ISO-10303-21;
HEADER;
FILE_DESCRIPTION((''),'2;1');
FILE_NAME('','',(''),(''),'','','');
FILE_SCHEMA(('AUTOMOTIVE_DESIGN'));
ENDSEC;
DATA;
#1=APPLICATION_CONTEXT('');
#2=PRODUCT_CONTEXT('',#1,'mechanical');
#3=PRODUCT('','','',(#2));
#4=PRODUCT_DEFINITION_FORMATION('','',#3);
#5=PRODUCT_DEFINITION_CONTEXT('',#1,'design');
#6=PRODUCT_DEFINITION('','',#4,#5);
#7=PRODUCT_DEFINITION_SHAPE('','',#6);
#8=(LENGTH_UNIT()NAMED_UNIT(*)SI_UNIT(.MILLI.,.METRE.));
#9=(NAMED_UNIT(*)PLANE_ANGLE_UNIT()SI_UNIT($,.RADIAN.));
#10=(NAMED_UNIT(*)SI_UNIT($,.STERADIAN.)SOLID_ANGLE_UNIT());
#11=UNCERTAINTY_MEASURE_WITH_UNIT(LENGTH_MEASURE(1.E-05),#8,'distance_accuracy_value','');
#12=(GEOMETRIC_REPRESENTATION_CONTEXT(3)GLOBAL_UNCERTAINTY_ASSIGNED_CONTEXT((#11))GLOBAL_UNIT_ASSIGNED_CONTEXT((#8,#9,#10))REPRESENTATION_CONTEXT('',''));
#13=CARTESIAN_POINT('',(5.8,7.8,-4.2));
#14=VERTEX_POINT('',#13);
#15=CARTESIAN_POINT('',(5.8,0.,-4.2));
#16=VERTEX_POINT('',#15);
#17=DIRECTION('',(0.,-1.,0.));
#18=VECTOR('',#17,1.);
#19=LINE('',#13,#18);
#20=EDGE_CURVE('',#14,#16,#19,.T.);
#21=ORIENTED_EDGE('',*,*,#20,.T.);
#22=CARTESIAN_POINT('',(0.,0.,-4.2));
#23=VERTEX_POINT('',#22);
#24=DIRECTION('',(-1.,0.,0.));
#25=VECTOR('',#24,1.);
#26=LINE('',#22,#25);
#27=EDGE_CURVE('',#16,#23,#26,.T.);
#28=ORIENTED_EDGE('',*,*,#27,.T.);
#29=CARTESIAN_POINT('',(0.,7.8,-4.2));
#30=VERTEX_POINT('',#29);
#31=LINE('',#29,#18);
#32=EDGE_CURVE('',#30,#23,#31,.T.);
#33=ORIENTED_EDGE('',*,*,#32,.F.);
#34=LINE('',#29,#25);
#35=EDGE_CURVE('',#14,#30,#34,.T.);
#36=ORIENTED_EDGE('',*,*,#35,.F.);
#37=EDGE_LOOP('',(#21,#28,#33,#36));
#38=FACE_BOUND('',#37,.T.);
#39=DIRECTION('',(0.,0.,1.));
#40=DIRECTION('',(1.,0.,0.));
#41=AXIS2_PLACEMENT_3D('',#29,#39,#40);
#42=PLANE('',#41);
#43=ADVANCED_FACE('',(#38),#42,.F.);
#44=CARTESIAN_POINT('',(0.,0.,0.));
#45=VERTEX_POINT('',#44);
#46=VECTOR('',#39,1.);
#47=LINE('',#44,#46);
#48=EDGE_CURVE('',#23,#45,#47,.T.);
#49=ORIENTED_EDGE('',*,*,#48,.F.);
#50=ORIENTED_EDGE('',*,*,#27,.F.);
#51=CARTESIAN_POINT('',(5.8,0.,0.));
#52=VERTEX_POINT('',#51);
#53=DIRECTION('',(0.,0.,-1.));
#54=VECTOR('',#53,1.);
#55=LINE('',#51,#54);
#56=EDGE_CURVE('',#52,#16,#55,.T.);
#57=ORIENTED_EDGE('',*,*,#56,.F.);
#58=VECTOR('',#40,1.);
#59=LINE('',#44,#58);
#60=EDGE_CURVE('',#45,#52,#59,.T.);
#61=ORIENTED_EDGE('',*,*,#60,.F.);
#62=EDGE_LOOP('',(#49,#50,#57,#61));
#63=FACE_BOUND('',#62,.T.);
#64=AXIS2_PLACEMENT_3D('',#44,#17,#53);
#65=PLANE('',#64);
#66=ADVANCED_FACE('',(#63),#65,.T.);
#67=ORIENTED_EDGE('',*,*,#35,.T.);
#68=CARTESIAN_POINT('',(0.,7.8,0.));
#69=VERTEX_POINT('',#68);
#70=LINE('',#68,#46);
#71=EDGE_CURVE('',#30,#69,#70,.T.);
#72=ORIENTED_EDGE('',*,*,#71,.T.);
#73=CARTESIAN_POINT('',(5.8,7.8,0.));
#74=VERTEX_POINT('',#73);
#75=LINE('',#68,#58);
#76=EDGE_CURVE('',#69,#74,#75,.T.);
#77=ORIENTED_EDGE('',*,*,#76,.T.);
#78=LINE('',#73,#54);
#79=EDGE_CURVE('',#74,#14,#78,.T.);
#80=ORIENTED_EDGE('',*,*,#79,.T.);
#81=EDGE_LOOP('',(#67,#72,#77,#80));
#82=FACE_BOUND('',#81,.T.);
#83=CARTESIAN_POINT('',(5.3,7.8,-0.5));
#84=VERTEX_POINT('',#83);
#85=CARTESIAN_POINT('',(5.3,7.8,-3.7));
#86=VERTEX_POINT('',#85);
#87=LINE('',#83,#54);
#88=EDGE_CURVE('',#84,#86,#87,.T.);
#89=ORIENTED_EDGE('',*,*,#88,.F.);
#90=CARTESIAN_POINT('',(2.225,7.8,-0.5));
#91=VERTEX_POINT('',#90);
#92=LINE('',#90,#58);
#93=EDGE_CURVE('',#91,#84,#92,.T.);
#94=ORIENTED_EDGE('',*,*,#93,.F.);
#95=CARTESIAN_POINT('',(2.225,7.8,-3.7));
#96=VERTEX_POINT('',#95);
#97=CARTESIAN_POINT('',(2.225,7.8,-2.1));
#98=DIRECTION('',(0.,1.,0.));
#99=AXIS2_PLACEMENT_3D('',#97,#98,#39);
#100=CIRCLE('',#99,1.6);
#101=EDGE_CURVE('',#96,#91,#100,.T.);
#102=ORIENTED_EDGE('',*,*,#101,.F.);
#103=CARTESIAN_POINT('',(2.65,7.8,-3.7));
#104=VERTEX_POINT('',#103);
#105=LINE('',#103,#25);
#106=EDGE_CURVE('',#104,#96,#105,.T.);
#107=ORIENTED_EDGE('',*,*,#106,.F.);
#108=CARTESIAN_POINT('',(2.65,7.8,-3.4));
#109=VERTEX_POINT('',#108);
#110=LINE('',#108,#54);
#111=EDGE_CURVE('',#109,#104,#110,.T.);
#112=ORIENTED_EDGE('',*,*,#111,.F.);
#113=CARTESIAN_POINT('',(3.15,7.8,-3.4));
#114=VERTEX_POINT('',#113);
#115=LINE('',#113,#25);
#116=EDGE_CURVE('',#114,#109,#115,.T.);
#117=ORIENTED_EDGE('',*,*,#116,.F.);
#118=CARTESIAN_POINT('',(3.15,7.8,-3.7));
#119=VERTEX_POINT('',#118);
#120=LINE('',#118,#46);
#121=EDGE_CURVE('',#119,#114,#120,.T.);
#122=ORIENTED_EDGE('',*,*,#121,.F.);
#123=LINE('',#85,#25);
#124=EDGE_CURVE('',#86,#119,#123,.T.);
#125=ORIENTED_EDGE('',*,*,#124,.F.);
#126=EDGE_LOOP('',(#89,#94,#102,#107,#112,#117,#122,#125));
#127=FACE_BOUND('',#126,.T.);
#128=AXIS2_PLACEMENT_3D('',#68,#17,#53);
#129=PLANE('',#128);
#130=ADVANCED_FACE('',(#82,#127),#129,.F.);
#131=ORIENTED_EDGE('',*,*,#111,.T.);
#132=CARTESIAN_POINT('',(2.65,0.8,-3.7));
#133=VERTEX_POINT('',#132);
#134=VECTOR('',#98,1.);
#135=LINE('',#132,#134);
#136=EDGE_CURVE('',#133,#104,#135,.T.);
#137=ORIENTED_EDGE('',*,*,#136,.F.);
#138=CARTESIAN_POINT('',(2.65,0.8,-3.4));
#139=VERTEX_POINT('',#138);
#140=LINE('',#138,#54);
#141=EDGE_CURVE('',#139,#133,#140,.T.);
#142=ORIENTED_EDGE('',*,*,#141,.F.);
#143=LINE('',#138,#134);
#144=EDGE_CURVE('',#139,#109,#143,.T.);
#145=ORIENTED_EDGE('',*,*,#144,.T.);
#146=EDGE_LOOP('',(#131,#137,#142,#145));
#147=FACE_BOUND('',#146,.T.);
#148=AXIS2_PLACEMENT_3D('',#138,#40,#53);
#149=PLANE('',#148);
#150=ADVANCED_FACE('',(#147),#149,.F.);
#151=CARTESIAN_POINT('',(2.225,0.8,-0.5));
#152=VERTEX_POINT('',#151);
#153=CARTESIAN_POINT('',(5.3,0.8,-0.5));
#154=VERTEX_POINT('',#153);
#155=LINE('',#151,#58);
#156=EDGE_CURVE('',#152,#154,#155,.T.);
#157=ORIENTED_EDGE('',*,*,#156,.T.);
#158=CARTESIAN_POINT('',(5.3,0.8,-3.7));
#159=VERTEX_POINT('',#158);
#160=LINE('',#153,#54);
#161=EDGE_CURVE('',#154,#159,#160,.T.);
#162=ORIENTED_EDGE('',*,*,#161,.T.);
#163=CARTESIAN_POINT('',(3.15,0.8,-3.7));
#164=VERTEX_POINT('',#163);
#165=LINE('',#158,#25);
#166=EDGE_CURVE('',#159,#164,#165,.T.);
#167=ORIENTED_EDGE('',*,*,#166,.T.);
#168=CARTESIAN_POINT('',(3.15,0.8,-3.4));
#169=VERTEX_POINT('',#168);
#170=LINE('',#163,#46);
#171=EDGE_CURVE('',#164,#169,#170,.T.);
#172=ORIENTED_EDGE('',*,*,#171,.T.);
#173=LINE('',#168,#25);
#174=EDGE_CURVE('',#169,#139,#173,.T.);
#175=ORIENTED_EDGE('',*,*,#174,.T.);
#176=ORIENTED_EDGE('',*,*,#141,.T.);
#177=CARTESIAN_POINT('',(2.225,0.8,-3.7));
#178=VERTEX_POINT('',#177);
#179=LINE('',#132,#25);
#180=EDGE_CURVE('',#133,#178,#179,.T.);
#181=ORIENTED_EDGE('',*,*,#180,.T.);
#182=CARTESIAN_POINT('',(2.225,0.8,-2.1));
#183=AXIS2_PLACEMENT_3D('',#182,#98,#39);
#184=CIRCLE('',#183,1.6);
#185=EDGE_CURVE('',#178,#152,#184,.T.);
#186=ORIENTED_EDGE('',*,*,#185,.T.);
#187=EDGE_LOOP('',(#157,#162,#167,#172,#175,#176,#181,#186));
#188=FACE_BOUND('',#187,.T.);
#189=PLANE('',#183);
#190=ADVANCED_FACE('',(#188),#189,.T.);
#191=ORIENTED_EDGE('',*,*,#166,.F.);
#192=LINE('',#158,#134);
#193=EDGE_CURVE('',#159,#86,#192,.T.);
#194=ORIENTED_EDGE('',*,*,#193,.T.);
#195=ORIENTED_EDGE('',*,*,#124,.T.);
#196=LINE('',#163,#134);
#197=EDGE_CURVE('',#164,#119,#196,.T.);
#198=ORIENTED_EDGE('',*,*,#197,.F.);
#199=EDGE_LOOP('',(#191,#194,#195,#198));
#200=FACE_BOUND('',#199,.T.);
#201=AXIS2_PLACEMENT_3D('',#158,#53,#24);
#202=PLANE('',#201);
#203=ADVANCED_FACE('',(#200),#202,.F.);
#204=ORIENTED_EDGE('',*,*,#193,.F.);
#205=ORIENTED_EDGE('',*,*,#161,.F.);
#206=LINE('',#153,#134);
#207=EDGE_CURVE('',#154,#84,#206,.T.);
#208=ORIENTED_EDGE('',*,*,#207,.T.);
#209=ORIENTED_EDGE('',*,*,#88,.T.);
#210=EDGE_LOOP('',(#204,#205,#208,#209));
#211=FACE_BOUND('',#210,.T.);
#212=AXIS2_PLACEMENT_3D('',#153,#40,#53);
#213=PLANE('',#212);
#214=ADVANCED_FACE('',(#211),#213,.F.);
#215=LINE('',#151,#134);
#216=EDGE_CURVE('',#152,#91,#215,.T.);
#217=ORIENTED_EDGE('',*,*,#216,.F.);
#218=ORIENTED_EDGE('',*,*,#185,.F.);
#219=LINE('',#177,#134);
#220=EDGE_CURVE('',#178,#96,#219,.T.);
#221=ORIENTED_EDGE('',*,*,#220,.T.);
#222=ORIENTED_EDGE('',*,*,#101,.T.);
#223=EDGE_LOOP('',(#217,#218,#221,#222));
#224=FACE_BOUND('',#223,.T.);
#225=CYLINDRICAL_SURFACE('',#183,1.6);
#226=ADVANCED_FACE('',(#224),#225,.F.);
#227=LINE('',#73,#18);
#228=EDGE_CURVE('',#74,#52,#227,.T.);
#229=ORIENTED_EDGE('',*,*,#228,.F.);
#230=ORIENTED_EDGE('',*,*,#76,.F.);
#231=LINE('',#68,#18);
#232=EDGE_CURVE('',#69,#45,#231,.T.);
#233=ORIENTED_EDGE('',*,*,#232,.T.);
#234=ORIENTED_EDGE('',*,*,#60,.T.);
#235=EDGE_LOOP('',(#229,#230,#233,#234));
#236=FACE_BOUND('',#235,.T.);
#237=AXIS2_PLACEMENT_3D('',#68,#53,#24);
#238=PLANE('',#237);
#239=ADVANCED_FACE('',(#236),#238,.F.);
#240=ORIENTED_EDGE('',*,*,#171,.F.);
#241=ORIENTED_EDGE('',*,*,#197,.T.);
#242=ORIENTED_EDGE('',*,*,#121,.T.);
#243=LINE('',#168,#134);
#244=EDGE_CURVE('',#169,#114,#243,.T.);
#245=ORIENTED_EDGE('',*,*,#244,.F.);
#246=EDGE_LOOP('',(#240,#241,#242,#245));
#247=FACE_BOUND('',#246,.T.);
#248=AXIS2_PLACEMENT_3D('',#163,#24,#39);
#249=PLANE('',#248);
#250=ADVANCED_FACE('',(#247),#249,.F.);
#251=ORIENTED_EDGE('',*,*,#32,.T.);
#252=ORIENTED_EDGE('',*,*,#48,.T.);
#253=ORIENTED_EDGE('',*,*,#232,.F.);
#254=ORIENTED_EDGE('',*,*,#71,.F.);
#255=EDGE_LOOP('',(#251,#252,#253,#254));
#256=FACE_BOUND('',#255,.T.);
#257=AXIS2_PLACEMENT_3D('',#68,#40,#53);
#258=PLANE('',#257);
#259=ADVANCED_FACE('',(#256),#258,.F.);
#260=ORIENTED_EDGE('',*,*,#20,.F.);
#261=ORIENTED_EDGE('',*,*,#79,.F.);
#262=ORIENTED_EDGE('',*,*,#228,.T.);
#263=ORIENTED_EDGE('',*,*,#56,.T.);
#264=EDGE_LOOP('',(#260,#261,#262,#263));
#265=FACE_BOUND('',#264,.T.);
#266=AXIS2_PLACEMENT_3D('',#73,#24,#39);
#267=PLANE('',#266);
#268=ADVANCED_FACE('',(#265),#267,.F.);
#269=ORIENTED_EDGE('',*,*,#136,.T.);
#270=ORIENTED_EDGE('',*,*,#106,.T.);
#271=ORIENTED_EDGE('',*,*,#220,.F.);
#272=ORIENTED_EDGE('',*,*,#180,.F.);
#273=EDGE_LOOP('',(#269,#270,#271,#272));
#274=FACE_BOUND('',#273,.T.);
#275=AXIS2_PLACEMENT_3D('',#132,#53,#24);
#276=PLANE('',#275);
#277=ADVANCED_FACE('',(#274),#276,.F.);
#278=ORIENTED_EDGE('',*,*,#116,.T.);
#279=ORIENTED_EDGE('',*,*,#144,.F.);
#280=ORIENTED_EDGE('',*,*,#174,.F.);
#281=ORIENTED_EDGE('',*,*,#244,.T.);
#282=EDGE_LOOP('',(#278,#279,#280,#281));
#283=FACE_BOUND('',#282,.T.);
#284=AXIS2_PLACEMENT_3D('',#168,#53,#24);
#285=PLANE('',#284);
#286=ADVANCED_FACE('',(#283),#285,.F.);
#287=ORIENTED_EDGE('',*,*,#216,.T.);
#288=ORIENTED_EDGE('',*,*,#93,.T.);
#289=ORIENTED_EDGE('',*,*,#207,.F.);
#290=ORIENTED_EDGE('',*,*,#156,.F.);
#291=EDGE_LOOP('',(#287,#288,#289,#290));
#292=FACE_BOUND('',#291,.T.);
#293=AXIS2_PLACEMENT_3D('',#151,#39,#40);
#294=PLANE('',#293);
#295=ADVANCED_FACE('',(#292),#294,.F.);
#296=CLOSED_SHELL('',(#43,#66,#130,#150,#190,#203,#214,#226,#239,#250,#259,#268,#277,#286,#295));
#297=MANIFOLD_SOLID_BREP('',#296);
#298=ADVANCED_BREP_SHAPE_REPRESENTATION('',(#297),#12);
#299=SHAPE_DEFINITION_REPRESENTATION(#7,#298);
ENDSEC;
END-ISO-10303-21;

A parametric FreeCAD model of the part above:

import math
import FreeCAD as App
import Part
import Sketcher


def add_polygon(sketch, points):
    """Adds a closed chain of lines whose ends are joined by coincident constraints."""
    first, n = sketch.GeometryCount, len(points)
    for a, b in zip(points, points[1:] + points[:1]):
        sketch.addGeometry(Part.LineSegment(App.Vector(*a, 0), App.Vector(*b, 0)), False)
    for i in range(n):
        sketch.addConstraint(Sketcher.Constraint("Coincident", first + i, 2, first + (i + 1) % n, 1))

doc = App.newDocument("Part")
body = doc.addObject("PartDesign::Body", "Body")

# Sketch on XZ plane
sketch1 = body.newObject("Sketcher::SketchObject", "Sketch")
sketch1.AttachmentSupport = (doc.getObject("XZ_Plane"), [""])
sketch1.MapMode = "FlatFace"
add_polygon(sketch1, [(0, -4.2), (0, 0), (5.8, 0), (5.8, -4.2)])  # lines 0-3
sketch1.addConstraint([
    Sketcher.Constraint("Vertical", 0),
    Sketcher.Constraint("Horizontal", 1),
    Sketcher.Constraint("Vertical", 2),
    Sketcher.Constraint("Horizontal", 3),
    Sketcher.Constraint("Coincident", 0, 2, -1, 1),
    Sketcher.Constraint("DistanceX", 1, 1, 1, 2, 5.8),
    Sketcher.Constraint("DistanceY", 0, 1, 0, 2, 4.2),
])
pad1 = body.newObject("PartDesign::Pad", "Pad")
pad1.Profile = sketch1
pad1.Length = 7.8
pad1.Reversed = True

# Sketch on XZ plane
sketch2 = body.newObject("Sketcher::SketchObject", "Sketch001")
sketch2.AttachmentSupport = (doc.getObject("XZ_Plane"), [""])
sketch2.MapMode = "FlatFace"
sketch2.AttachmentOffset = App.Placement(App.Vector(0, 0, -7.8), App.Rotation())
sketch2.addGeometry([
    Part.LineSegment(App.Vector(2.23, -0.5, 0), App.Vector(5.3, -0.5, 0)),  # 0
    Part.LineSegment(App.Vector(5.3, -0.5, 0), App.Vector(5.3, -3.7, 0)),  # 1
    Part.LineSegment(App.Vector(5.3, -3.7, 0), App.Vector(3.15, -3.7, 0)),  # 2
    Part.LineSegment(App.Vector(3.15, -3.7, 0), App.Vector(3.15, -3.4, 0)),  # 3
    Part.LineSegment(App.Vector(3.15, -3.4, 0), App.Vector(2.65, -3.4, 0)),  # 4
    Part.LineSegment(App.Vector(2.65, -3.4, 0), App.Vector(2.65, -3.7, 0)),  # 5
    Part.LineSegment(App.Vector(2.65, -3.7, 0), App.Vector(2.23, -3.7, 0)),  # 6
    Part.ArcOfCircle(Part.Circle(App.Vector(2.23, -2.1, 0), App.Vector(0, 0, 1), 1.6), math.radians(90), math.radians(270)),  # 7
], False)
sketch2.addConstraint([
    Sketcher.Constraint("Coincident", 0, 2, 1, 1),
    Sketcher.Constraint("Coincident", 1, 2, 2, 1),
    Sketcher.Constraint("Coincident", 2, 2, 3, 1),
    Sketcher.Constraint("Coincident", 3, 2, 4, 1),
    Sketcher.Constraint("Coincident", 4, 2, 5, 1),
    Sketcher.Constraint("Coincident", 5, 2, 6, 1),
    Sketcher.Constraint("Tangent", 6, 2, 7, 2),
    Sketcher.Constraint("Tangent", 7, 1, 0, 1),
    Sketcher.Constraint("Horizontal", 0),
    Sketcher.Constraint("Vertical", 1),
    Sketcher.Constraint("Horizontal", 2),
    Sketcher.Constraint("Vertical", 3),
    Sketcher.Constraint("Horizontal", 4),
    Sketcher.Constraint("Vertical", 5),
    Sketcher.Constraint("Horizontal", 6),
    Sketcher.Constraint("Horizontal", 2, 2, 5, 2),
    Sketcher.Constraint("Radius", 7, 1.6),
    Sketcher.Constraint("DistanceX", 4, 2, 4, 1, 0.5),
    Sketcher.Constraint("DistanceY", 3, 1, 3, 2, 0.3),
    Sketcher.Constraint("DistanceX", 2, 2, 2, 1, 2.15),
    Sketcher.Constraint("DistanceY", 7, 3, -1, 1, 2.1),
    Sketcher.Constraint("DistanceX", -1, 1, 0, 2, 5.3),
    Sketcher.Constraint("DistanceX", 0, 1, 0, 2, 3.075),
])
pocket1 = body.newObject("PartDesign::Pocket", "Pocket")
pocket1.Profile = sketch2
pocket1.Length = 7
pocket1.Reversed = True

doc.recompute()
